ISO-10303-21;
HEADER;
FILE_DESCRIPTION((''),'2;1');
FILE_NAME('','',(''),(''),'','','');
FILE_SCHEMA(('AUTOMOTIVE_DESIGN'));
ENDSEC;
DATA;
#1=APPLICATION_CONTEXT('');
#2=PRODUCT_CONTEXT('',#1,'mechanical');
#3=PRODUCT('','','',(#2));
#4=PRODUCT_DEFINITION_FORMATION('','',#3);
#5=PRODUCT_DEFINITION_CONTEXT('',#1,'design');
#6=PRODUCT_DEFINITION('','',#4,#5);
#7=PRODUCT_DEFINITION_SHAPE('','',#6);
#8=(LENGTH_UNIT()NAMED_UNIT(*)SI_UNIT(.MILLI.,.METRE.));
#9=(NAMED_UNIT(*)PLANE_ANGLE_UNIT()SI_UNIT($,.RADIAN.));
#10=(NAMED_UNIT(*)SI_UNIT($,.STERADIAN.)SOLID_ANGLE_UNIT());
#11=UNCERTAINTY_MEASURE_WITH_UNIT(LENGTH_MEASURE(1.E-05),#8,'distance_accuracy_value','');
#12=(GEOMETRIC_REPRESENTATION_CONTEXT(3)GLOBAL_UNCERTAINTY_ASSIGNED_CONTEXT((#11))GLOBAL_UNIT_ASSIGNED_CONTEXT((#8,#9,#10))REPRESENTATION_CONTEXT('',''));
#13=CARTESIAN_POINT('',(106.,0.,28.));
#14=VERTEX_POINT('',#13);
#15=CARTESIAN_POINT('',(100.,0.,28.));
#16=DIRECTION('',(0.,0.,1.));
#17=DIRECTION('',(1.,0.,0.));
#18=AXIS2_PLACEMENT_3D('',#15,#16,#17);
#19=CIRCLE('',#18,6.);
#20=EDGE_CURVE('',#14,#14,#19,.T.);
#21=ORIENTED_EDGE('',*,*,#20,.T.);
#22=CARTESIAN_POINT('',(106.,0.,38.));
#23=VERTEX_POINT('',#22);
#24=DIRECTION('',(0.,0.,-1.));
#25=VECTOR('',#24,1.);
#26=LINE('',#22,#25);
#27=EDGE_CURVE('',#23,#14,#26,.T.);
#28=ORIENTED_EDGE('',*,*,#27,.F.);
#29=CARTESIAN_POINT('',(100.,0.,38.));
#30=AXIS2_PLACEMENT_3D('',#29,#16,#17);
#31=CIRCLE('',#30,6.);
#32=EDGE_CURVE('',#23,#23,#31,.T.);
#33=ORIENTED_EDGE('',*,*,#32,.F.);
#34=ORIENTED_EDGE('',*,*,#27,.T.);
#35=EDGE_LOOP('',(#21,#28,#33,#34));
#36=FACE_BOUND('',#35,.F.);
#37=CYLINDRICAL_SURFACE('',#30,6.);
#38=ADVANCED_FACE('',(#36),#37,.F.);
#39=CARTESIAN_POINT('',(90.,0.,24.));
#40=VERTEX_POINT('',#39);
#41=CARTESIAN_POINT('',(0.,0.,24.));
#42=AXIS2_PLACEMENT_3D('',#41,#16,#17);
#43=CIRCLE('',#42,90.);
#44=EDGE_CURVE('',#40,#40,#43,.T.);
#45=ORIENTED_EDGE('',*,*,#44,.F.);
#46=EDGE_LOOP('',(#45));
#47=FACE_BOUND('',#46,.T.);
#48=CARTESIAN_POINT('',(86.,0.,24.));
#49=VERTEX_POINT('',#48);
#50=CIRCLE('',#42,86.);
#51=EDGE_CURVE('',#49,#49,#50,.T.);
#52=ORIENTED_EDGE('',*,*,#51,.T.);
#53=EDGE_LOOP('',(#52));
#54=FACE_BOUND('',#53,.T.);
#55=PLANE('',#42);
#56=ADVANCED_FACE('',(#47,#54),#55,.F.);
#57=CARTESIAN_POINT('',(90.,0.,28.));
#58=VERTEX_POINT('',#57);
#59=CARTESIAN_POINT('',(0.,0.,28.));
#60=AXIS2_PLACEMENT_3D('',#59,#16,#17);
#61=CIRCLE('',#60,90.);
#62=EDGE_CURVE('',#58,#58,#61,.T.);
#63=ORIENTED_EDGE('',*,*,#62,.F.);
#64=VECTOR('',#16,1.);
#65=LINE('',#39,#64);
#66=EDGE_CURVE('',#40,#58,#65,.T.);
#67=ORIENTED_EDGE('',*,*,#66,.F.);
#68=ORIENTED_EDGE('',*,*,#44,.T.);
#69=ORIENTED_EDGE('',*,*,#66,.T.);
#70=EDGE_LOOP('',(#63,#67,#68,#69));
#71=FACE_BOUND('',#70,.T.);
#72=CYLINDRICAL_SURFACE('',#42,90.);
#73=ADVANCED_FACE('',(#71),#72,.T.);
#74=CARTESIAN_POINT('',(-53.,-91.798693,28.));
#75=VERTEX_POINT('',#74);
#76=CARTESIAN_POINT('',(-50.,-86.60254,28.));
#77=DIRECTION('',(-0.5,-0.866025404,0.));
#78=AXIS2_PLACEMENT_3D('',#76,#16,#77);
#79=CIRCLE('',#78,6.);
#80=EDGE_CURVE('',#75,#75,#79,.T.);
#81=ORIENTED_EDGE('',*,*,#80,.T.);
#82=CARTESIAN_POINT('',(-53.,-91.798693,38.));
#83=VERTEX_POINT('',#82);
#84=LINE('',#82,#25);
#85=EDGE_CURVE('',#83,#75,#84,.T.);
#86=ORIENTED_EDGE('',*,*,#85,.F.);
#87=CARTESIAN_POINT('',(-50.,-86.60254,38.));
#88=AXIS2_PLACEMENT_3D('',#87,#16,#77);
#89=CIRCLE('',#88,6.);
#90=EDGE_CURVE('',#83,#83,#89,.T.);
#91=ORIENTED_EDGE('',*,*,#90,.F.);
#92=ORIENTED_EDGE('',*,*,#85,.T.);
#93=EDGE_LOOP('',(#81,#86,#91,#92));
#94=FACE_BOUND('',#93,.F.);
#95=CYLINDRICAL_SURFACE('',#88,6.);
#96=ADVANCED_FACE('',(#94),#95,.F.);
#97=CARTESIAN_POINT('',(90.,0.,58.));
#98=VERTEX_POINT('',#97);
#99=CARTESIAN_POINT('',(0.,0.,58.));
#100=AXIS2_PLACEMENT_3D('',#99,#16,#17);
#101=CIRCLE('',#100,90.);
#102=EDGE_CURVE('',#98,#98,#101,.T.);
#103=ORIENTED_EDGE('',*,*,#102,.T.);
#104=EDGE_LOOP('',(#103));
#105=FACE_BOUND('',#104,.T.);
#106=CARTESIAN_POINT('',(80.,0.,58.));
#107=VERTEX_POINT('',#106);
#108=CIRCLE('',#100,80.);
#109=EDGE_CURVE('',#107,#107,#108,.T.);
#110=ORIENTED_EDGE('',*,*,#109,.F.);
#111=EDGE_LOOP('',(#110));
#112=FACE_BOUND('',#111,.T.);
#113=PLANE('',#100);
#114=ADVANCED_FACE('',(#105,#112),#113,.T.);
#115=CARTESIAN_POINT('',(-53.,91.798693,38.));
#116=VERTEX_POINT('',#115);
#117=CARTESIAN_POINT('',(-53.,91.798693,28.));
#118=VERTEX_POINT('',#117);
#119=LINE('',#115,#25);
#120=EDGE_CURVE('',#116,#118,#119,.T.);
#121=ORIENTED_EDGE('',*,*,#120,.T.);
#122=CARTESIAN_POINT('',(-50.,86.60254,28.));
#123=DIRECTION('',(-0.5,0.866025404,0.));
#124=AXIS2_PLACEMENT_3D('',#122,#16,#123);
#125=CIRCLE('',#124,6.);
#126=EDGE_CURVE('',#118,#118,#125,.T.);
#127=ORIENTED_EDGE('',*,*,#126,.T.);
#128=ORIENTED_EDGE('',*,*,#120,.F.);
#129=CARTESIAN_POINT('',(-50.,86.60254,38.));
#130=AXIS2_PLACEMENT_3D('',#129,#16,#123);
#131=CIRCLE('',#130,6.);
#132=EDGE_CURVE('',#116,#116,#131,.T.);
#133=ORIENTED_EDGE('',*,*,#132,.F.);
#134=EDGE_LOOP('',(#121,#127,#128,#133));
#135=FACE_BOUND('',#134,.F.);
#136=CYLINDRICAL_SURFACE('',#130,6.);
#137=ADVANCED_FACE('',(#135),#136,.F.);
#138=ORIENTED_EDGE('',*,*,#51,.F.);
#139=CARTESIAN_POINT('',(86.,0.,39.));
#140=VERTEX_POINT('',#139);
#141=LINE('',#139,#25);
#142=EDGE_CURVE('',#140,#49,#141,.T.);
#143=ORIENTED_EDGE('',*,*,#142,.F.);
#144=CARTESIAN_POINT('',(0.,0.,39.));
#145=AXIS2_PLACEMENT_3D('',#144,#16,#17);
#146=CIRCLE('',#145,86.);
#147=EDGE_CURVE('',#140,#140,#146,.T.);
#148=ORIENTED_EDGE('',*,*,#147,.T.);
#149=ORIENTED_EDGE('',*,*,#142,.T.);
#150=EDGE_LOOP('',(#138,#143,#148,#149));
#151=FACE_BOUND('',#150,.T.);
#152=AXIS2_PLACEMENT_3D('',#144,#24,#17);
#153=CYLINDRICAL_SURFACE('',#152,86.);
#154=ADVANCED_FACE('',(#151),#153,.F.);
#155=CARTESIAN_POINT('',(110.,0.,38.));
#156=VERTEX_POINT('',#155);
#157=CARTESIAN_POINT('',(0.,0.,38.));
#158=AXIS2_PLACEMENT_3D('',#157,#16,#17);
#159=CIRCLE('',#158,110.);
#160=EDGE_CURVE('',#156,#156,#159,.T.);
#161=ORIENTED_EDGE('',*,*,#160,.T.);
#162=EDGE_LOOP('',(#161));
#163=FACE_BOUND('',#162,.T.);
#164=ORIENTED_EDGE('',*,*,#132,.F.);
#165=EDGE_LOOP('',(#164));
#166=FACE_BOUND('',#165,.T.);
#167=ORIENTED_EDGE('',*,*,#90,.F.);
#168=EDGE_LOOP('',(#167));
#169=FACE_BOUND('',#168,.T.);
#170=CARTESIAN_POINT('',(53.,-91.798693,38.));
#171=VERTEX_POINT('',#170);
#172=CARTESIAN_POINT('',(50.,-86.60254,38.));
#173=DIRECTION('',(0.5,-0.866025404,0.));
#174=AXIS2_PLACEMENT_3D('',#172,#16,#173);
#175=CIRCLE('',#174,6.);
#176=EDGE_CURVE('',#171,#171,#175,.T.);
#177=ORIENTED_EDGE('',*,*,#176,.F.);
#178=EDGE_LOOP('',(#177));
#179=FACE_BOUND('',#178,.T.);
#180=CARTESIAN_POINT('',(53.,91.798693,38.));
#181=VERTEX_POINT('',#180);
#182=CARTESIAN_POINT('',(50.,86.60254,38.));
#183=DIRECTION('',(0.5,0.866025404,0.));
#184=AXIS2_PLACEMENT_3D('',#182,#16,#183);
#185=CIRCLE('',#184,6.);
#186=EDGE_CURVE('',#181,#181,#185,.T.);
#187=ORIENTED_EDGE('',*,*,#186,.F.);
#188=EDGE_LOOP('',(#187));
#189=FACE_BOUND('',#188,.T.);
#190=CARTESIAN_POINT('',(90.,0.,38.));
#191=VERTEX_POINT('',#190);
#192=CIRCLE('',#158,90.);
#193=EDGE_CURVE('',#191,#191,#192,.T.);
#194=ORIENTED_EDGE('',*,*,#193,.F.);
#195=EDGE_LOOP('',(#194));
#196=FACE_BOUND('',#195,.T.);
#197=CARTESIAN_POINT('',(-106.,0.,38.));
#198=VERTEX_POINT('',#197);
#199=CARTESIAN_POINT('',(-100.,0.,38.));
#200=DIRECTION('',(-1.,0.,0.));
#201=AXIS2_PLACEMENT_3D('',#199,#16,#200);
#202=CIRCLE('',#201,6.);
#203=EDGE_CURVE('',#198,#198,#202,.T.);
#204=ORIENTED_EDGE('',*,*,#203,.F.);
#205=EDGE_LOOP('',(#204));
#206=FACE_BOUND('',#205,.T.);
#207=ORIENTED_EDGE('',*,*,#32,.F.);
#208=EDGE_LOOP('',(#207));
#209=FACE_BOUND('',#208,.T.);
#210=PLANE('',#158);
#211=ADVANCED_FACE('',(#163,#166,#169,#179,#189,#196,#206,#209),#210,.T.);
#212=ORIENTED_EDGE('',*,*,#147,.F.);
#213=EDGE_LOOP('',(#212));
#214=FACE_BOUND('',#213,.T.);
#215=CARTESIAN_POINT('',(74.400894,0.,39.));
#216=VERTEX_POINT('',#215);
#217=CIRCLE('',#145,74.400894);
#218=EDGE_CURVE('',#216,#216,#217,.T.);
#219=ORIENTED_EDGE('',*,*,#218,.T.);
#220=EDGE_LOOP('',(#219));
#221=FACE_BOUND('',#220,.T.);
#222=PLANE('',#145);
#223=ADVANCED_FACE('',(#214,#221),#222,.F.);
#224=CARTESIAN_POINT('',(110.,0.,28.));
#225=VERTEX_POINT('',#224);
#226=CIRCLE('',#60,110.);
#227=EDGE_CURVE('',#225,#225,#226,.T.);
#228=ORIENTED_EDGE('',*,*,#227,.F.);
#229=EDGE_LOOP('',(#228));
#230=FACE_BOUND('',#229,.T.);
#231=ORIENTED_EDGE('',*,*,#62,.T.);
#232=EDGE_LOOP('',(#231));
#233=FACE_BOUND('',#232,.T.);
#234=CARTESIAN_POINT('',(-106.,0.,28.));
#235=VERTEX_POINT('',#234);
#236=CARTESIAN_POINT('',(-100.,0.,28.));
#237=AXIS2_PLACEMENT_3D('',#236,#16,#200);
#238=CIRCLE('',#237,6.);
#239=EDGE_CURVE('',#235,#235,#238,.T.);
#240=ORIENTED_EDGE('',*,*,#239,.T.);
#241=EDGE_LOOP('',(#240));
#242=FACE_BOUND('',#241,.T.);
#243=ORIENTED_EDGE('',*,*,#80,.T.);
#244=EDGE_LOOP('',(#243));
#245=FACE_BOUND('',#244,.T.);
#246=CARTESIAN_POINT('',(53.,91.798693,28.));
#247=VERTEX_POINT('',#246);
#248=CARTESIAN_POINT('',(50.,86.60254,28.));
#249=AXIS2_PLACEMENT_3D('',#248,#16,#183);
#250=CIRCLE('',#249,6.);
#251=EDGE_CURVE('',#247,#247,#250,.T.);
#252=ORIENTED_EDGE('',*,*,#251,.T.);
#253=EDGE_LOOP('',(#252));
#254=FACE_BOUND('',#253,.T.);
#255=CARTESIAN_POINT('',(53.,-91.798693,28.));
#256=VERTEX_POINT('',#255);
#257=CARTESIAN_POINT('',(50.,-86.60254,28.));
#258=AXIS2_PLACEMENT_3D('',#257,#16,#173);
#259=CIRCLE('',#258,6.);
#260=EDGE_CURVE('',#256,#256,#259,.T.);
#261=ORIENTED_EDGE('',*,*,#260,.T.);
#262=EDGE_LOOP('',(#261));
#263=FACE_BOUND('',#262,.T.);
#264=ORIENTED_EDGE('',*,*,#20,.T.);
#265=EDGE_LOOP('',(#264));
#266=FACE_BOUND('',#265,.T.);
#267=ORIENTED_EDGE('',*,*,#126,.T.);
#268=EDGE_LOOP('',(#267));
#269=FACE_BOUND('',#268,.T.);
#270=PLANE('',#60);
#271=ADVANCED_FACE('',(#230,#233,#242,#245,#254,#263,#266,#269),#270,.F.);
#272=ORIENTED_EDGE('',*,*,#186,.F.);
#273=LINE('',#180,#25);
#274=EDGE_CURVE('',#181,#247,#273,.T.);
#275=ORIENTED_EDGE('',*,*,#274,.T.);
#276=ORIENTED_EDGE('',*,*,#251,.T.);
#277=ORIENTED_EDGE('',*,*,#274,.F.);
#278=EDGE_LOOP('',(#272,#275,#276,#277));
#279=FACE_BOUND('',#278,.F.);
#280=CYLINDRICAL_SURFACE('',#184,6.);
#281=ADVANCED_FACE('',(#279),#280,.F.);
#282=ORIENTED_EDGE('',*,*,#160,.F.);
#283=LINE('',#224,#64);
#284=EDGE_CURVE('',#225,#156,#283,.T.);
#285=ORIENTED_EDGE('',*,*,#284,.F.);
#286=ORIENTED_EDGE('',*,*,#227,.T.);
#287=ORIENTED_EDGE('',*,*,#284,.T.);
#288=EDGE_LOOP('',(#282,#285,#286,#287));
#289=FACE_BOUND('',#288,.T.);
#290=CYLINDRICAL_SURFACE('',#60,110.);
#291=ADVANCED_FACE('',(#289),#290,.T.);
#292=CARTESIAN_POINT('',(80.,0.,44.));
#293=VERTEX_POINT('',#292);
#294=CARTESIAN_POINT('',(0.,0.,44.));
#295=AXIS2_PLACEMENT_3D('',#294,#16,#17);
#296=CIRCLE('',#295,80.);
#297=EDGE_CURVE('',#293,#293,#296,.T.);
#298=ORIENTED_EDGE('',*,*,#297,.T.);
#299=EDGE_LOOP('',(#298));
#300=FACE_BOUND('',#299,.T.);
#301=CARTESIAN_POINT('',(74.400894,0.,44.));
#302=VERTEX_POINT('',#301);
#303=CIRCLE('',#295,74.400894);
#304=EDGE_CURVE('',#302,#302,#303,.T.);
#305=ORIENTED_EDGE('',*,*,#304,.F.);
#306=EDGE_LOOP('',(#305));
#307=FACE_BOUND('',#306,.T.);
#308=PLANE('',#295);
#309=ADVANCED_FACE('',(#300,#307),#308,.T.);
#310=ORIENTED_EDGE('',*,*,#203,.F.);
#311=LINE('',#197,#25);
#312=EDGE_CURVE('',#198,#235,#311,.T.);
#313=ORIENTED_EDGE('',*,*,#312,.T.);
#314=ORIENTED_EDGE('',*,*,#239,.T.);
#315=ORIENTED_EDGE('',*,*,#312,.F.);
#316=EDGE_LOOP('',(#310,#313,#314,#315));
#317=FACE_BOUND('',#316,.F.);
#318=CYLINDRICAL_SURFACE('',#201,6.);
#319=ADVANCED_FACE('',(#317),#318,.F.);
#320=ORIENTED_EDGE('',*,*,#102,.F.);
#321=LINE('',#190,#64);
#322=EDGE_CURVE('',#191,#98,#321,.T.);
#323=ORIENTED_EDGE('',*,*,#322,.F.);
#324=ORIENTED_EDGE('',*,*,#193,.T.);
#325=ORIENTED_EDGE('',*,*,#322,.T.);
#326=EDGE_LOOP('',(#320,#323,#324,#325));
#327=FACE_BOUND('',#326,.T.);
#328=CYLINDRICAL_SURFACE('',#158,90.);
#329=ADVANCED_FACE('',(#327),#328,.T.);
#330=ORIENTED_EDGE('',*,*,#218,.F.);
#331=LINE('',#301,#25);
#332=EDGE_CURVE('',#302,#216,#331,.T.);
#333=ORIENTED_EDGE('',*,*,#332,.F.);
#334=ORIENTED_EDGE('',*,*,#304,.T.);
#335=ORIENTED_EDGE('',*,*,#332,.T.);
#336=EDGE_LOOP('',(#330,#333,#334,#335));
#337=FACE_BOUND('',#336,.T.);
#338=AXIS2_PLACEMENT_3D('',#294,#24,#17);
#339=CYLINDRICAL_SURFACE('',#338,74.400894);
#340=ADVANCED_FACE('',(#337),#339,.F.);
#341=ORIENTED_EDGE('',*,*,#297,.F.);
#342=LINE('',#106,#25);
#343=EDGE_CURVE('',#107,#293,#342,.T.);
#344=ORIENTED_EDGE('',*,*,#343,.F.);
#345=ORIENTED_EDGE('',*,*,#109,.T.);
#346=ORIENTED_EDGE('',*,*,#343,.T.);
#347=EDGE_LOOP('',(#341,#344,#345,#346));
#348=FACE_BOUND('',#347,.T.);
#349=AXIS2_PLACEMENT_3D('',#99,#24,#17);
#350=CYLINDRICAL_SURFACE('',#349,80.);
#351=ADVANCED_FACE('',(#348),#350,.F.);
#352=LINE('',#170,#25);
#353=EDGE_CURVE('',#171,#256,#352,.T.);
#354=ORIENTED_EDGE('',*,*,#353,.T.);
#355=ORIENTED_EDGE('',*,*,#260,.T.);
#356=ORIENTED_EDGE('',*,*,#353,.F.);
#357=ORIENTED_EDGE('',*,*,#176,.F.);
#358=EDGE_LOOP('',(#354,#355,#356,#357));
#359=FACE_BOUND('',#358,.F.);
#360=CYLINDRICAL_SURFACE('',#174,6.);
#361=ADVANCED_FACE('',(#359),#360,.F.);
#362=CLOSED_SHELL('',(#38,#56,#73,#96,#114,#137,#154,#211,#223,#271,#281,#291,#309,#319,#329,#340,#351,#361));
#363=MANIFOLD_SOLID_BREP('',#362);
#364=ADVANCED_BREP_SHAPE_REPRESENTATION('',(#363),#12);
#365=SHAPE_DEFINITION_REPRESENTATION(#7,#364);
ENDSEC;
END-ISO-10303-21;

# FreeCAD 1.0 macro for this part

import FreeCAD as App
import Part
import Sketcher
from FreeCAD import Vector

doc = App.newDocument("Part")
body = doc.addObject("PartDesign::Body", "Body")

sketch1 = body.newObject("Sketcher::SketchObject", "Sketch")
sketch1.AttachmentSupport = (doc.getObject("XZ_Plane"), [""])
sketch1.MapMode = "FlatFace"
sketch1.addGeometry([
    Part.LineSegment(Vector(90, 28, 0), Vector(110, 28, 0)),
    Part.LineSegment(Vector(110, 28, 0), Vector(110, 38, 0)),
    Part.LineSegment(Vector(110, 38, 0), Vector(90, 38, 0)),
    Part.LineSegment(Vector(90, 38, 0), Vector(90, 58, 0)),
    Part.LineSegment(Vector(90, 58, 0), Vector(80, 58, 0)),
    Part.LineSegment(Vector(80, 58, 0), Vector(80, 44, 0)),
    Part.LineSegment(Vector(80, 44, 0), Vector(74.400894, 44, 0)),
    Part.LineSegment(Vector(74.400894, 44, 0), Vector(74.400894, 39, 0)),
    Part.LineSegment(Vector(74.400894, 39, 0), Vector(86, 39, 0)),
    Part.LineSegment(Vector(86, 39, 0), Vector(86, 24, 0)),
    Part.LineSegment(Vector(86, 24, 0), Vector(90, 24, 0)),
    Part.LineSegment(Vector(90, 24, 0), Vector(90, 28, 0)),
], False)
sketch1.addConstraint([
    Sketcher.Constraint("Coincident", 0, 2, 1, 1),
    Sketcher.Constraint("Coincident", 1, 2, 2, 1),
    Sketcher.Constraint("Coincident", 2, 2, 3, 1),
    Sketcher.Constraint("Coincident", 3, 2, 4, 1),
    Sketcher.Constraint("Coincident", 4, 2, 5, 1),
    Sketcher.Constraint("Coincident", 5, 2, 6, 1),
    Sketcher.Constraint("Coincident", 6, 2, 7, 1),
    Sketcher.Constraint("Coincident", 7, 2, 8, 1),
    Sketcher.Constraint("Coincident", 8, 2, 9, 1),
    Sketcher.Constraint("Coincident", 9, 2, 10, 1),
    Sketcher.Constraint("Coincident", 10, 2, 11, 1),
    Sketcher.Constraint("Coincident", 11, 2, 0, 1),
    Sketcher.Constraint("Horizontal", 0),
    Sketcher.Constraint("Vertical", 1),
    Sketcher.Constraint("Horizontal", 2),
    Sketcher.Constraint("Vertical", 3),
    Sketcher.Constraint("Horizontal", 4),
    Sketcher.Constraint("Vertical", 5),
    Sketcher.Constraint("Horizontal", 6),
    Sketcher.Constraint("Vertical", 7),
    Sketcher.Constraint("Horizontal", 8),
    Sketcher.Constraint("Vertical", 9),
    Sketcher.Constraint("Horizontal", 10),
    Sketcher.Constraint("Vertical", 11),
    Sketcher.Constraint("Vertical", 3, 2, 10, 2),
    Sketcher.Constraint("Equal", 4, 1),
    Sketcher.Constraint("Equal", 2, 3),
    Sketcher.Constraint("Equal", 10, 11),
    Sketcher.Constraint("DistanceX", 0, 1, 0, 2, 20.0),
    Sketcher.Constraint("DistanceX", 4, 2, 4, 1, 10.0),
    Sketcher.Constraint("DistanceX", 10, 1, 10, 2, 4.0),
    Sketcher.Constraint("DistanceY", 5, 2, 5, 1, 14.0),
    Sketcher.Constraint("DistanceY", 7, 2, 7, 1, 5.0),
    Sketcher.Constraint("DistanceX", -1, 1, 0, 2, 110.0),
    Sketcher.Constraint("DistanceY", -1, 1, 0, 2, 28.0),
    Sketcher.Constraint("DistanceX", 6, 2, 6, 1, 5.599106),
])
revolution = body.newObject("PartDesign::Revolution", "Revolution")
revolution.Profile = sketch1
revolution.ReferenceAxis = (sketch1, ["V_Axis"])
revolution.Angle = 360

sketch2 = body.newObject("Sketcher::SketchObject", "Sketch001")
sketch2.AttachmentSupport = (doc.getObject("XY_Plane"), [""])
sketch2.MapMode = "FlatFace"
sketch2.AttachmentOffset = App.Placement(Vector(0, 0, 38), App.Rotation())
sketch2.addGeometry(Part.Circle(Vector(-100, 0, 0), Vector(0, 0, 1), 6), False)
sketch2.addConstraint([
    Sketcher.Constraint("PointOnObject", 0, 3, -1),
    Sketcher.Constraint("Diameter", 0, 12.0),
    Sketcher.Constraint("DistanceX", 0, 3, -1, 1, 100.0),
])
pocket1 = body.newObject("PartDesign::Pocket", "Pocket")
pocket1.Profile = sketch2
pocket1.Type = "ThroughAll"
doc.recompute()

polarpattern = body.newObject("PartDesign::PolarPattern", "PolarPattern")
polarpattern.Originals = [pocket1]
polarpattern.Axis = (doc.getObject("Z_Axis"), [""])
polarpattern.Angle = 360
polarpattern.Occurrences = 6
body.Tip = polarpattern

doc.recompute()
